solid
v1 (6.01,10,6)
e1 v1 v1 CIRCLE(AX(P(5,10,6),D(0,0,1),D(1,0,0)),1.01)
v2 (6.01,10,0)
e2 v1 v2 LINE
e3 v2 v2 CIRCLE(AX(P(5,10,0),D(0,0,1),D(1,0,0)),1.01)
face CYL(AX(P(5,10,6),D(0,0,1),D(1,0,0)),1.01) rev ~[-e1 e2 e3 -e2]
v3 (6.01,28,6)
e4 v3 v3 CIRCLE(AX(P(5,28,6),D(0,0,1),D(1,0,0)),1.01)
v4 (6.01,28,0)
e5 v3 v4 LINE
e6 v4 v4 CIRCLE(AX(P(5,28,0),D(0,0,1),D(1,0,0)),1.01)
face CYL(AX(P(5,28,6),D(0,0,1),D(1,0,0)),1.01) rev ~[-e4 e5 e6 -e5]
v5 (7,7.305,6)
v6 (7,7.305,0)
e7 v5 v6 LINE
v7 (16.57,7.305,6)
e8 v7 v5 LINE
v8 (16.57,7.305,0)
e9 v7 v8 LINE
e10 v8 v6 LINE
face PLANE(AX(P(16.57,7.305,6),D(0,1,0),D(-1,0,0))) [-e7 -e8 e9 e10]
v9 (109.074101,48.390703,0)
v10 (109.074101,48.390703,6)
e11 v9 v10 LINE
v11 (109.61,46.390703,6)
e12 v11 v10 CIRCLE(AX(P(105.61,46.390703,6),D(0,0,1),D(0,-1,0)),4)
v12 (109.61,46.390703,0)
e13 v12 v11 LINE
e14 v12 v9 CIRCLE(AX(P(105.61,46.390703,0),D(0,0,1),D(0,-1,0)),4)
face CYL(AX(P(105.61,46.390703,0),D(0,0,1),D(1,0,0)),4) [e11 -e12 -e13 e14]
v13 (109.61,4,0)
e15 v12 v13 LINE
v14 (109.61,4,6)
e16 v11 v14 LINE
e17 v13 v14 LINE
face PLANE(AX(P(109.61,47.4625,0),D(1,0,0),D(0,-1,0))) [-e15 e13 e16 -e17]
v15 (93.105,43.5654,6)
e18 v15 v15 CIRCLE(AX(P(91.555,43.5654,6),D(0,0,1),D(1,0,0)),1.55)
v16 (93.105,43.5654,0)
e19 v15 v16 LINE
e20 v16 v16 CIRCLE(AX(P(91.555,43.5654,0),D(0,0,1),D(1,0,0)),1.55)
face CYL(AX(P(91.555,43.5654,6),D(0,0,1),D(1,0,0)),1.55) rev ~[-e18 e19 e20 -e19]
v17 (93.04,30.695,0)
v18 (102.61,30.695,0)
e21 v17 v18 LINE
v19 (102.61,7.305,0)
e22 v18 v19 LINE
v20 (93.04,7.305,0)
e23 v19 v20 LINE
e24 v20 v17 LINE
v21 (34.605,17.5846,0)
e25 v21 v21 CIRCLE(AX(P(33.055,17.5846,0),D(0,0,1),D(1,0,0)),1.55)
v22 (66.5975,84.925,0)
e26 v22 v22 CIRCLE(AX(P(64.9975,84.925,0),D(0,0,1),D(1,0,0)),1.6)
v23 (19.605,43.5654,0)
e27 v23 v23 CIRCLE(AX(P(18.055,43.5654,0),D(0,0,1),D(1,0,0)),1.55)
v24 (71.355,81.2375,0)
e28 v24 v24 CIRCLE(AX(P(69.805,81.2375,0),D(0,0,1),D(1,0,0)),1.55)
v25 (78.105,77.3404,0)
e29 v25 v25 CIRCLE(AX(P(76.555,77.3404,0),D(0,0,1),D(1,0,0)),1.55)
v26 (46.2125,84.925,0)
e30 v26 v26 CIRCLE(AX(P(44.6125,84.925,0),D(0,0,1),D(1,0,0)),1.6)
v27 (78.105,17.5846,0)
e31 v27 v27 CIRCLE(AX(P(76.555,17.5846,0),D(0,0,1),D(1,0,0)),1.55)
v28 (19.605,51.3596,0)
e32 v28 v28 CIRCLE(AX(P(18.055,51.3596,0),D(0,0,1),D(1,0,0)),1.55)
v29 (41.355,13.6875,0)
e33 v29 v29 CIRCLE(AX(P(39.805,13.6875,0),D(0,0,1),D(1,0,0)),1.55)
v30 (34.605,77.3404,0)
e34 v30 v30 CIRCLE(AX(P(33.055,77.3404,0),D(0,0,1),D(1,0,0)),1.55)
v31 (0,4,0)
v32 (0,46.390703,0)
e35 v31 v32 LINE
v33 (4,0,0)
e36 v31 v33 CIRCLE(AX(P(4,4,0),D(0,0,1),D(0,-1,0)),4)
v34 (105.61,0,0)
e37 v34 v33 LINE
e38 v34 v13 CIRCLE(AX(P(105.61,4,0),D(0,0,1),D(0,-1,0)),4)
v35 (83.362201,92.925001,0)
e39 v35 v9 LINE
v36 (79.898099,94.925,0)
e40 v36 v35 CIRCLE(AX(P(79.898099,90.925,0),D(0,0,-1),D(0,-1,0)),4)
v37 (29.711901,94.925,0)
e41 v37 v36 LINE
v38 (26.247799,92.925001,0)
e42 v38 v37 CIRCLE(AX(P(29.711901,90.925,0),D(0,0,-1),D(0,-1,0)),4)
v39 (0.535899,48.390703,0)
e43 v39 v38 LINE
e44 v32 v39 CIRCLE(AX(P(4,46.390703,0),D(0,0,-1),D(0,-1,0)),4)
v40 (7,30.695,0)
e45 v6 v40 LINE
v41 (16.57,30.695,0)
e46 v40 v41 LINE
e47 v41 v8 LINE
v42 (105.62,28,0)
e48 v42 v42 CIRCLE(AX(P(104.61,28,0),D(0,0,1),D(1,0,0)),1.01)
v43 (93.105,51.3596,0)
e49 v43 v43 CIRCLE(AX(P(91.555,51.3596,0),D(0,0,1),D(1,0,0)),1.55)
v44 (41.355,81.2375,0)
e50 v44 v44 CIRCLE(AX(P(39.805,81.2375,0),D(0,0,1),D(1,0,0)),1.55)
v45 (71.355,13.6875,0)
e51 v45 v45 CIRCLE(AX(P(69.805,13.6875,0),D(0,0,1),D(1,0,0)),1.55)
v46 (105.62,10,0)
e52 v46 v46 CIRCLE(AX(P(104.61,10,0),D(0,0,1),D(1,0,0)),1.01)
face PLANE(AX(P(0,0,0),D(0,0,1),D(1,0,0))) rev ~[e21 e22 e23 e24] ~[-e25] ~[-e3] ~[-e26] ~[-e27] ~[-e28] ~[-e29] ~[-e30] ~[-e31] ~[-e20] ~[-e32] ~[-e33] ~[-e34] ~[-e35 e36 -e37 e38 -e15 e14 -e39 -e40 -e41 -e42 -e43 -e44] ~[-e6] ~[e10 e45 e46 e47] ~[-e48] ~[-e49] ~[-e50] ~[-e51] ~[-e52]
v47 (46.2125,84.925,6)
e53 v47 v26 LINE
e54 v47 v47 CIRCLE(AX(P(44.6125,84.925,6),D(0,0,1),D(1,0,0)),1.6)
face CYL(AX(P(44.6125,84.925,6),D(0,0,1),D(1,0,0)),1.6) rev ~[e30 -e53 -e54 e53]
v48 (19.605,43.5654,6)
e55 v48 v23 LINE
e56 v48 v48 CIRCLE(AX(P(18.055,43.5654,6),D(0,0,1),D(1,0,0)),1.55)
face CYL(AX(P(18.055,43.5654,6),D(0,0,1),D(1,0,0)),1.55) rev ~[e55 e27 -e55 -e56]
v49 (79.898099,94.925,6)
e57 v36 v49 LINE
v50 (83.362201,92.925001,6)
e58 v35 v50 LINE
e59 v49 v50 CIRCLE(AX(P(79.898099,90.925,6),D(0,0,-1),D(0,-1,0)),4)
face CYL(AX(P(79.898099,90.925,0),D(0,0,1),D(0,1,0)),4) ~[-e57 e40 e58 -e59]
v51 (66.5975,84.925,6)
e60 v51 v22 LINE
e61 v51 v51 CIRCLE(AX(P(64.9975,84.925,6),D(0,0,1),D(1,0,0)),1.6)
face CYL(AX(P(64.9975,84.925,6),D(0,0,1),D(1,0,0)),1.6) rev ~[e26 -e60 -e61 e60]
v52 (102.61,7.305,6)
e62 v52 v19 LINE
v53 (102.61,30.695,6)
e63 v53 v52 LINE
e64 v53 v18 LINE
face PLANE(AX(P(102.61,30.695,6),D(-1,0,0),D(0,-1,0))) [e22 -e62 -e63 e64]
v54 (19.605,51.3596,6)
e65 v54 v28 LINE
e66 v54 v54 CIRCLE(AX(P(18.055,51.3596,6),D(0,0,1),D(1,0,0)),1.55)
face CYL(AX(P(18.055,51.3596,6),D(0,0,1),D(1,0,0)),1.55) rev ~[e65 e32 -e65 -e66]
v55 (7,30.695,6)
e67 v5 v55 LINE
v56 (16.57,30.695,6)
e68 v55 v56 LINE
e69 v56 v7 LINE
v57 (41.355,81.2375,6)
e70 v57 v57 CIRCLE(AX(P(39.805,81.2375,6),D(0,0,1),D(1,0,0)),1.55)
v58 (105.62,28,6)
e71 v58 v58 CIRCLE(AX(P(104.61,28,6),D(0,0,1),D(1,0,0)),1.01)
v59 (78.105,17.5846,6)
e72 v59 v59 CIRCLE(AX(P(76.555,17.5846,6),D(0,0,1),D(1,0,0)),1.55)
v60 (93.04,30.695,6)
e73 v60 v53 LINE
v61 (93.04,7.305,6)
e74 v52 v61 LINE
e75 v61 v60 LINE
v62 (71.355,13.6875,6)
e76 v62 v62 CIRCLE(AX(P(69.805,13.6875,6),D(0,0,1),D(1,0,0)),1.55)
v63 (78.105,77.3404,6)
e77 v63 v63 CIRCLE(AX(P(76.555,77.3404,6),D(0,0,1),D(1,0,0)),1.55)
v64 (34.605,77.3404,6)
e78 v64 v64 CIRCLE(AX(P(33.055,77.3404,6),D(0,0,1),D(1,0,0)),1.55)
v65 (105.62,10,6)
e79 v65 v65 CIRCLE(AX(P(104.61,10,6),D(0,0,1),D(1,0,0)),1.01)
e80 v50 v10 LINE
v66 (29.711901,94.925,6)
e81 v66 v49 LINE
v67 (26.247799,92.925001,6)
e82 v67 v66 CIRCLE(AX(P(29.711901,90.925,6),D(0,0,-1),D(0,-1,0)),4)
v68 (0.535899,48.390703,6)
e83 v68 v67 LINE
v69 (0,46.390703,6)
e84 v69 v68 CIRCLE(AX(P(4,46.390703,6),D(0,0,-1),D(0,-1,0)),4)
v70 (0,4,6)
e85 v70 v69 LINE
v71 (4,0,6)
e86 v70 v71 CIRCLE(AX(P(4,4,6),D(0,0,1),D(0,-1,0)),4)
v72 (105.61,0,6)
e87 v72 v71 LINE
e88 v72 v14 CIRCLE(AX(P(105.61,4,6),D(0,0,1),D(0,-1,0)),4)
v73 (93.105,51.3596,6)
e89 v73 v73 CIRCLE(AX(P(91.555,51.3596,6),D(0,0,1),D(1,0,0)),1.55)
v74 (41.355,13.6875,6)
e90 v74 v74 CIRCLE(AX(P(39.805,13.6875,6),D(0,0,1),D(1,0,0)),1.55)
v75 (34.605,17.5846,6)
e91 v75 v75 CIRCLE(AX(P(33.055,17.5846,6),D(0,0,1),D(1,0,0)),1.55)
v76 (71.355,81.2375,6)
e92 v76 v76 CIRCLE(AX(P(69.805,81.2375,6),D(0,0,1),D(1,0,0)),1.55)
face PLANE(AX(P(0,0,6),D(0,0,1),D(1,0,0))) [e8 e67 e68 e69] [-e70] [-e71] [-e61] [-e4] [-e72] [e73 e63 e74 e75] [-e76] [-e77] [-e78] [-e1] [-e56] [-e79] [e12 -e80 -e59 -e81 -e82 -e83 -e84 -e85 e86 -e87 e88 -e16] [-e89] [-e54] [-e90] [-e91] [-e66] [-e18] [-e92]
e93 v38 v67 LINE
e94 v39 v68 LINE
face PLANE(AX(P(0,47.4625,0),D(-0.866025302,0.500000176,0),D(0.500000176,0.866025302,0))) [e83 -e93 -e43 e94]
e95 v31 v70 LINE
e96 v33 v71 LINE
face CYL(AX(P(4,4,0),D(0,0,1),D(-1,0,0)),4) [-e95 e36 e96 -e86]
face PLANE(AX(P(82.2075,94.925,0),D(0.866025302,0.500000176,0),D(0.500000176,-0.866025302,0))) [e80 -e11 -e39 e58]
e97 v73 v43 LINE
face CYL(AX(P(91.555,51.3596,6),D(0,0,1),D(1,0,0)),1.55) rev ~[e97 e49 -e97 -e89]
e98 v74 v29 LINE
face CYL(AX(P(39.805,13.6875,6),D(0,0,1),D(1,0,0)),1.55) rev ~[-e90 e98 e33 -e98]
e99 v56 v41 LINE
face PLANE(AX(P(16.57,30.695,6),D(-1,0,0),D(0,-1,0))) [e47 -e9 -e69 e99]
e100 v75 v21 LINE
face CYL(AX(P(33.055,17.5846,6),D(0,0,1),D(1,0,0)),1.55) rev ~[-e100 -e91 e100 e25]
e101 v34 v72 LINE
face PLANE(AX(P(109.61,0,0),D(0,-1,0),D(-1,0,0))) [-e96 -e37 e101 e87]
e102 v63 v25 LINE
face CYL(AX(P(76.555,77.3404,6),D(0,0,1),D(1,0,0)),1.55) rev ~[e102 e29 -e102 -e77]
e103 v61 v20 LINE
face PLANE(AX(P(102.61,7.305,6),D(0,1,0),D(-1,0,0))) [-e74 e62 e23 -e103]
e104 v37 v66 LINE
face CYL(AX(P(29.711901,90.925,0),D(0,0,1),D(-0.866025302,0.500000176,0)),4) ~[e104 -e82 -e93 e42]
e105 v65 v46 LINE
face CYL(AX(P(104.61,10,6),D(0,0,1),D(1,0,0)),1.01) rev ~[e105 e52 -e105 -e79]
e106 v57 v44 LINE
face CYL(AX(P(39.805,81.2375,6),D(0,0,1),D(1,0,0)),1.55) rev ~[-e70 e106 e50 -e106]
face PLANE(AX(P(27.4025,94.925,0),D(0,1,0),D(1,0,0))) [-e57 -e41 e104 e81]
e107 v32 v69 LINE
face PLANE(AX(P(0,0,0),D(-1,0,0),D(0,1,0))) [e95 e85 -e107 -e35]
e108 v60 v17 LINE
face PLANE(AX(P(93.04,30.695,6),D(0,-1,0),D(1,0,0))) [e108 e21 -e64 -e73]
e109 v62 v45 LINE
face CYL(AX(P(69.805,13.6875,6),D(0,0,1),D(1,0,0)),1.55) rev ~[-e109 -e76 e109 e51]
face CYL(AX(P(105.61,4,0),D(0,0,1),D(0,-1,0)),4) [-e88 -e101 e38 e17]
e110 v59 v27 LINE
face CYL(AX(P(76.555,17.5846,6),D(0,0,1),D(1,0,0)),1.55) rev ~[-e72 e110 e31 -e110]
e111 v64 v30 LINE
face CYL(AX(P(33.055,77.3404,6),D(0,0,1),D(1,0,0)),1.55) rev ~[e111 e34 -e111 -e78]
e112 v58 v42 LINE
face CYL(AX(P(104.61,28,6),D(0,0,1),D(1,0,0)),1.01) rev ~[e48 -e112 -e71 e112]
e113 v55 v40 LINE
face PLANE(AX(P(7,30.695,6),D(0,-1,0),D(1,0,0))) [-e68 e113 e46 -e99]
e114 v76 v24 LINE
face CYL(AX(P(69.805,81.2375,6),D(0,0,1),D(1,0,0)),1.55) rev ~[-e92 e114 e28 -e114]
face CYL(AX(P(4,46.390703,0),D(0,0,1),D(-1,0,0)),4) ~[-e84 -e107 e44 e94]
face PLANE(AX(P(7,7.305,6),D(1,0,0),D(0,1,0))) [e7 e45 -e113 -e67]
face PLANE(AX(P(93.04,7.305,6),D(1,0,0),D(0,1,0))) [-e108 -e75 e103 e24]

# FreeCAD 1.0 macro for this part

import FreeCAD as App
import Part
import Sketcher
from FreeCAD import Vector
Q = App.Units.Quantity


def edges_at(feature, points):
    """Names of the edges that pass closest to the given points."""
    edges = feature.Shape.Edges
    near = lambda p: min(range(len(edges)), key=lambda i: edges[i].distToShape(Part.Vertex(*p))[0])
    return sorted({f"Edge{near(p) + 1}" for p in points})

doc = App.newDocument("Part")
body = doc.addObject("PartDesign::Body", "Body")

sketch1 = body.newObject("Sketcher::SketchObject", "Sketch")
sketch1.AttachmentSupport = (doc.getObject("XY_Plane"), [""])
sketch1.MapMode = "FlatFace"
sketch1.addGeometry([
    Part.LineSegment(Vector(0, 47, 0), Vector(0, 0, 0)),
    Part.LineSegment(Vector(0, 0, 0), Vector(110, 0, 0)),
    Part.LineSegment(Vector(110, 0, 0), Vector(110, 47, 0)),
    Part.LineSegment(Vector(110, 47, 0), Vector(82, 95, 0)),
    Part.LineSegment(Vector(82, 95, 0), Vector(27, 95, 0)),
    Part.LineSegment(Vector(27, 95, 0), Vector(0, 47, 0)),
], False)
sketch1.addConstraint([
    Sketcher.Constraint("Coincident", 0, 2, 1, 1),
    Sketcher.Constraint("Coincident", 1, 2, 2, 1),
    Sketcher.Constraint("Coincident", 2, 2, 3, 1),
    Sketcher.Constraint("Coincident", 3, 2, 4, 1),
    Sketcher.Constraint("Coincident", 4, 2, 5, 1),
    Sketcher.Constraint("Coincident", 5, 2, 0, 1),
    Sketcher.Constraint("Vertical", 0),
    Sketcher.Constraint("Horizontal", 1),
    Sketcher.Constraint("Vertical", 2),
    Sketcher.Constraint("Horizontal", 4),
    Sketcher.Constraint("Coincident", 0, 2, -1, 1),
    Sketcher.Constraint("Horizontal", 2, 2, 5, 2),
    Sketcher.Constraint("Equal", 3, 5),
    Sketcher.Constraint("Angle", 3, Q("120 deg")),
    Sketcher.Constraint("DistanceX", 4, 2, 4, 1, 54.805),
    Sketcher.Constraint("Distance", 3, 54.805),
    Sketcher.Constraint("DistanceY", 0, 2, 0, 1, 47.4625),
])
pad1 = body.newObject("PartDesign::Pad", "Pad")
pad1.Profile = sketch1
pad1.Length = 6

sketch2 = body.newObject("Sketcher::SketchObject", "Sketch001")
sketch2.AttachmentSupport = (doc.getObject("XY_Plane"), [""])
sketch2.MapMode = "FlatFace"
sketch2.AttachmentOffset = App.Placement(Vector(0, 0, 6), App.Rotation())
sketch2.addGeometry([
    Part.Circle(Vector(5, 28, 0), Vector(0, 0, 1), 1),
    Part.Circle(Vector(5, 10, 0), Vector(0, 0, 1), 1),
    Part.Circle(Vector(104.6, 28, 0), Vector(0, 0, 1), 1),
    Part.Circle(Vector(104.6, 10, 0), Vector(0, 0, 1), 1),
    Part.Circle(Vector(44.6, 84.9, 0), Vector(0, 0, 1), 1.6),
    Part.Circle(Vector(65, 84.9, 0), Vector(0, 0, 1), 1.6),
    Part.LineSegment(Vector(16.6, 30.7, 0), Vector(7, 30.7, 0)),
    Part.LineSegment(Vector(7, 30.7, 0), Vector(7, 7.3, 0)),
    Part.LineSegment(Vector(7, 7.3, 0), Vector(16.6, 7.3, 0)),
    Part.LineSegment(Vector(16.6, 7.3, 0), Vector(16.6, 30.7, 0)),
    Part.LineSegment(Vector(102.6, 30.7, 0), Vector(93, 30.7, 0)),
    Part.LineSegment(Vector(93, 30.7, 0), Vector(93, 7.3, 0)),
    Part.LineSegment(Vector(93, 7.3, 0), Vector(102.6, 7.3, 0)),
    Part.LineSegment(Vector(102.6, 7.3, 0), Vector(102.6, 30.7, 0)),
], False)
sketch2.addConstraint([
    Sketcher.Constraint("Coincident", 6, 2, 7, 1),
    Sketcher.Constraint("Coincident", 7, 2, 8, 1),
    Sketcher.Constraint("Coincident", 8, 2, 9, 1),
    Sketcher.Constraint("Coincident", 9, 2, 6, 1),
    Sketcher.Constraint("Coincident", 10, 2, 11, 1),
    Sketcher.Constraint("Coincident", 11, 2, 12, 1),
    Sketcher.Constraint("Coincident", 12, 2, 13, 1),
    Sketcher.Constraint("Coincident", 13, 2, 10, 1),
    Sketcher.Constraint("Horizontal", 6),
    Sketcher.Constraint("Vertical", 7),
    Sketcher.Constraint("Horizontal", 8),
    Sketcher.Constraint("Vertical", 9),
    Sketcher.Constraint("Horizontal", 10),
    Sketcher.Constraint("Vertical", 11),
    Sketcher.Constraint("Horizontal", 12),
    Sketcher.Constraint("Vertical", 13),
    Sketcher.Constraint("Equal", 0, 1),
    Sketcher.Constraint("Equal", 1, 2),
    Sketcher.Constraint("Equal", 2, 3),
    Sketcher.Constraint("Equal", 4, 5),
    Sketcher.Constraint("Horizontal", 0, 3, 2, 3),
    Sketcher.Constraint("Horizontal", 1, 3, 3, 3),
    Sketcher.Constraint("Horizontal", 4, 3, 5, 3),
    Sketcher.Constraint("Horizontal", 9, 2, 10, 2),
    Sketcher.Constraint("Horizontal", 8, 2, 11, 2),
    Sketcher.Constraint("Vertical", 0, 3, 1, 3),
    Sketcher.Constraint("Vertical", 2, 3, 3, 3),
    Sketcher.Constraint("Equal", 8, 10),
    Sketcher.Constraint("Diameter", 4, 3.2),
    Sketcher.Constraint("Diameter", 0, 2.02),
    Sketcher.Constraint("DistanceX", -1, 1, 0, 3, 5.0),
    Sketcher.Constraint("DistanceY", -1, 1, 1, 3, 10.0),
    Sketcher.Constraint("DistanceY", 1, 3, 0, 3, 18.0),
    Sketcher.Constraint("DistanceX", 0, 3, 6, 2, 2.0),
    Sketcher.Constraint("DistanceX", 12, 2, 3, 3, 2.0),
    Sketcher.Constraint("DistanceX", 6, 2, 6, 1, 9.57),
    Sketcher.Constraint("DistanceY", 7, 2, 7, 1, 23.39),
    Sketcher.Constraint("DistanceX", 4, 3, 5, 3, 20.385),
    Sketcher.Constraint("DistanceX", -1, 1, 2, 3, 104.61),
    Sketcher.Constraint("DistanceY", 6, 2, 4, 3, 54.23),
    Sketcher.Constraint("DistanceY", -1, 1, 4, 3, 84.925),
    Sketcher.Constraint("DistanceX", -1, 1, 4, 3, 44.6125),
])
pocket1 = body.newObject("PartDesign::Pocket", "Pocket")
pocket1.Profile = sketch2
pocket1.Type = "ThroughAll"

sketch3 = body.newObject("Sketcher::SketchObject", "Sketch002")
sketch3.AttachmentSupport = (doc.getObject("XY_Plane"), [""])
sketch3.MapMode = "FlatFace"
sketch3.AttachmentOffset = App.Placement(Vector(0, 0, 6), App.Rotation())
sketch3.addGeometry([
    Part.Circle(Vector(33.1, 77.3, 0), Vector(0, 0, 1), 1.6),
    Part.Circle(Vector(39.8, 81.2, 0), Vector(0, 0, 1), 1.6),
    Part.Circle(Vector(69.8, 81.2, 0), Vector(0, 0, 1), 1.6),
    Part.Circle(Vector(18.1, 51.4, 0), Vector(0, 0, 1), 1.6),
    Part.Circle(Vector(18.1, 43.6, 0), Vector(0, 0, 1), 1.6),
    Part.Circle(Vector(33.1, 17.6, 0), Vector(0, 0, 1), 1.6),
    Part.Circle(Vector(39.8, 13.7, 0), Vector(0, 0, 1), 1.6),
    Part.Circle(Vector(69.8, 13.7, 0), Vector(0, 0, 1), 1.6),
    Part.Circle(Vector(76.6, 17.6, 0), Vector(0, 0, 1), 1.6),
    Part.Circle(Vector(91.6, 43.6, 0), Vector(0, 0, 1), 1.6),
    Part.Circle(Vector(91.6, 51.4, 0), Vector(0, 0, 1), 1.6),
    Part.Circle(Vector(76.6, 77.3, 0), Vector(0, 0, 1), 1.6),
], False)
sketch3.addConstraint([
    Sketcher.Constraint("Equal", 0, 1),
    Sketcher.Constraint("Equal", 1, 2),
    Sketcher.Constraint("Equal", 2, 3),
    Sketcher.Constraint("Equal", 3, 4),
    Sketcher.Constraint("Equal", 4, 5),
    Sketcher.Constraint("Equal", 5, 6),
    Sketcher.Constraint("Equal", 6, 7),
    Sketcher.Constraint("Equal", 7, 8),
    Sketcher.Constraint("Equal", 8, 9),
    Sketcher.Constraint("Equal", 9, 10),
    Sketcher.Constraint("Equal", 10, 11),
    Sketcher.Constraint("Horizontal", 1, 3, 2, 3),
    Sketcher.Constraint("Horizontal", 6, 3, 7, 3),
    Sketcher.Constraint("Horizontal", 5, 3, 8, 3),
    Sketcher.Constraint("Horizontal", 4, 3, 9, 3),
    Sketcher.Constraint("Horizontal", 3, 3, 10, 3),
    Sketcher.Constraint("Horizontal", 0, 3, 11, 3),
    Sketcher.Constraint("Vertical", 3, 3, 4, 3),
    Sketcher.Constraint("Vertical", 0, 3, 5, 3),
    Sketcher.Constraint("Vertical", 1, 3, 6, 3),
    Sketcher.Constraint("Vertical", 2, 3, 7, 3),
    Sketcher.Constraint("Vertical", 9, 3, 10, 3),
    Sketcher.Constraint("Vertical", 8, 3, 11, 3),
    Sketcher.Constraint("Diameter", 0, 3.1),
    Sketcher.Constraint("DistanceX", 1, 3, 2, 3, 30.0),
    Sketcher.Constraint("DistanceX", 3, 3, 0, 3, 15.0),
    Sketcher.Constraint("DistanceX", 8, 3, 9, 3, 15.0),
    Sketcher.Constraint("DistanceY", 5, 3, 0, 3, 59.7558),
    Sketcher.Constraint("DistanceX", 5, 3, 8, 3, 43.5),
    Sketcher.Constraint("DistanceX", 0, 3, 1, 3, 6.75),
    Sketcher.Constraint("DistanceY", 6, 3, 1, 3, 67.55),
    Sketcher.Constraint("DistanceX", -1, 1, 0, 3, 33.055),
    Sketcher.Constraint("DistanceY", 0, 3, 1, 3, 3.897),
    Sketcher.Constraint("DistanceY", 3, 3, 1, 3, 29.878),
    Sketcher.Constraint("DistanceY", 4, 3, 0, 3, 33.775),
    Sketcher.Constraint("DistanceY", -1, 1, 0, 3, 77.3404),
])
pocket2 = body.newObject("PartDesign::Pocket", "Pocket001")
pocket2.Profile = sketch3
pocket2.Type = "ThroughAll"
doc.recompute()

fillet = body.newObject("PartDesign::Fillet", "Fillet")
fillet.Base = (pocket2, edges_at(pocket2, [
    (109.61, 0, 3),
    (109.61, 47.462, 3),
    (82.207, 94.925, 3),
    (27.402, 94.925, 3),
    (0, 47.462, 3),
    (0, 0, 3),
]))
fillet.Radius = 4

doc.recompute()
